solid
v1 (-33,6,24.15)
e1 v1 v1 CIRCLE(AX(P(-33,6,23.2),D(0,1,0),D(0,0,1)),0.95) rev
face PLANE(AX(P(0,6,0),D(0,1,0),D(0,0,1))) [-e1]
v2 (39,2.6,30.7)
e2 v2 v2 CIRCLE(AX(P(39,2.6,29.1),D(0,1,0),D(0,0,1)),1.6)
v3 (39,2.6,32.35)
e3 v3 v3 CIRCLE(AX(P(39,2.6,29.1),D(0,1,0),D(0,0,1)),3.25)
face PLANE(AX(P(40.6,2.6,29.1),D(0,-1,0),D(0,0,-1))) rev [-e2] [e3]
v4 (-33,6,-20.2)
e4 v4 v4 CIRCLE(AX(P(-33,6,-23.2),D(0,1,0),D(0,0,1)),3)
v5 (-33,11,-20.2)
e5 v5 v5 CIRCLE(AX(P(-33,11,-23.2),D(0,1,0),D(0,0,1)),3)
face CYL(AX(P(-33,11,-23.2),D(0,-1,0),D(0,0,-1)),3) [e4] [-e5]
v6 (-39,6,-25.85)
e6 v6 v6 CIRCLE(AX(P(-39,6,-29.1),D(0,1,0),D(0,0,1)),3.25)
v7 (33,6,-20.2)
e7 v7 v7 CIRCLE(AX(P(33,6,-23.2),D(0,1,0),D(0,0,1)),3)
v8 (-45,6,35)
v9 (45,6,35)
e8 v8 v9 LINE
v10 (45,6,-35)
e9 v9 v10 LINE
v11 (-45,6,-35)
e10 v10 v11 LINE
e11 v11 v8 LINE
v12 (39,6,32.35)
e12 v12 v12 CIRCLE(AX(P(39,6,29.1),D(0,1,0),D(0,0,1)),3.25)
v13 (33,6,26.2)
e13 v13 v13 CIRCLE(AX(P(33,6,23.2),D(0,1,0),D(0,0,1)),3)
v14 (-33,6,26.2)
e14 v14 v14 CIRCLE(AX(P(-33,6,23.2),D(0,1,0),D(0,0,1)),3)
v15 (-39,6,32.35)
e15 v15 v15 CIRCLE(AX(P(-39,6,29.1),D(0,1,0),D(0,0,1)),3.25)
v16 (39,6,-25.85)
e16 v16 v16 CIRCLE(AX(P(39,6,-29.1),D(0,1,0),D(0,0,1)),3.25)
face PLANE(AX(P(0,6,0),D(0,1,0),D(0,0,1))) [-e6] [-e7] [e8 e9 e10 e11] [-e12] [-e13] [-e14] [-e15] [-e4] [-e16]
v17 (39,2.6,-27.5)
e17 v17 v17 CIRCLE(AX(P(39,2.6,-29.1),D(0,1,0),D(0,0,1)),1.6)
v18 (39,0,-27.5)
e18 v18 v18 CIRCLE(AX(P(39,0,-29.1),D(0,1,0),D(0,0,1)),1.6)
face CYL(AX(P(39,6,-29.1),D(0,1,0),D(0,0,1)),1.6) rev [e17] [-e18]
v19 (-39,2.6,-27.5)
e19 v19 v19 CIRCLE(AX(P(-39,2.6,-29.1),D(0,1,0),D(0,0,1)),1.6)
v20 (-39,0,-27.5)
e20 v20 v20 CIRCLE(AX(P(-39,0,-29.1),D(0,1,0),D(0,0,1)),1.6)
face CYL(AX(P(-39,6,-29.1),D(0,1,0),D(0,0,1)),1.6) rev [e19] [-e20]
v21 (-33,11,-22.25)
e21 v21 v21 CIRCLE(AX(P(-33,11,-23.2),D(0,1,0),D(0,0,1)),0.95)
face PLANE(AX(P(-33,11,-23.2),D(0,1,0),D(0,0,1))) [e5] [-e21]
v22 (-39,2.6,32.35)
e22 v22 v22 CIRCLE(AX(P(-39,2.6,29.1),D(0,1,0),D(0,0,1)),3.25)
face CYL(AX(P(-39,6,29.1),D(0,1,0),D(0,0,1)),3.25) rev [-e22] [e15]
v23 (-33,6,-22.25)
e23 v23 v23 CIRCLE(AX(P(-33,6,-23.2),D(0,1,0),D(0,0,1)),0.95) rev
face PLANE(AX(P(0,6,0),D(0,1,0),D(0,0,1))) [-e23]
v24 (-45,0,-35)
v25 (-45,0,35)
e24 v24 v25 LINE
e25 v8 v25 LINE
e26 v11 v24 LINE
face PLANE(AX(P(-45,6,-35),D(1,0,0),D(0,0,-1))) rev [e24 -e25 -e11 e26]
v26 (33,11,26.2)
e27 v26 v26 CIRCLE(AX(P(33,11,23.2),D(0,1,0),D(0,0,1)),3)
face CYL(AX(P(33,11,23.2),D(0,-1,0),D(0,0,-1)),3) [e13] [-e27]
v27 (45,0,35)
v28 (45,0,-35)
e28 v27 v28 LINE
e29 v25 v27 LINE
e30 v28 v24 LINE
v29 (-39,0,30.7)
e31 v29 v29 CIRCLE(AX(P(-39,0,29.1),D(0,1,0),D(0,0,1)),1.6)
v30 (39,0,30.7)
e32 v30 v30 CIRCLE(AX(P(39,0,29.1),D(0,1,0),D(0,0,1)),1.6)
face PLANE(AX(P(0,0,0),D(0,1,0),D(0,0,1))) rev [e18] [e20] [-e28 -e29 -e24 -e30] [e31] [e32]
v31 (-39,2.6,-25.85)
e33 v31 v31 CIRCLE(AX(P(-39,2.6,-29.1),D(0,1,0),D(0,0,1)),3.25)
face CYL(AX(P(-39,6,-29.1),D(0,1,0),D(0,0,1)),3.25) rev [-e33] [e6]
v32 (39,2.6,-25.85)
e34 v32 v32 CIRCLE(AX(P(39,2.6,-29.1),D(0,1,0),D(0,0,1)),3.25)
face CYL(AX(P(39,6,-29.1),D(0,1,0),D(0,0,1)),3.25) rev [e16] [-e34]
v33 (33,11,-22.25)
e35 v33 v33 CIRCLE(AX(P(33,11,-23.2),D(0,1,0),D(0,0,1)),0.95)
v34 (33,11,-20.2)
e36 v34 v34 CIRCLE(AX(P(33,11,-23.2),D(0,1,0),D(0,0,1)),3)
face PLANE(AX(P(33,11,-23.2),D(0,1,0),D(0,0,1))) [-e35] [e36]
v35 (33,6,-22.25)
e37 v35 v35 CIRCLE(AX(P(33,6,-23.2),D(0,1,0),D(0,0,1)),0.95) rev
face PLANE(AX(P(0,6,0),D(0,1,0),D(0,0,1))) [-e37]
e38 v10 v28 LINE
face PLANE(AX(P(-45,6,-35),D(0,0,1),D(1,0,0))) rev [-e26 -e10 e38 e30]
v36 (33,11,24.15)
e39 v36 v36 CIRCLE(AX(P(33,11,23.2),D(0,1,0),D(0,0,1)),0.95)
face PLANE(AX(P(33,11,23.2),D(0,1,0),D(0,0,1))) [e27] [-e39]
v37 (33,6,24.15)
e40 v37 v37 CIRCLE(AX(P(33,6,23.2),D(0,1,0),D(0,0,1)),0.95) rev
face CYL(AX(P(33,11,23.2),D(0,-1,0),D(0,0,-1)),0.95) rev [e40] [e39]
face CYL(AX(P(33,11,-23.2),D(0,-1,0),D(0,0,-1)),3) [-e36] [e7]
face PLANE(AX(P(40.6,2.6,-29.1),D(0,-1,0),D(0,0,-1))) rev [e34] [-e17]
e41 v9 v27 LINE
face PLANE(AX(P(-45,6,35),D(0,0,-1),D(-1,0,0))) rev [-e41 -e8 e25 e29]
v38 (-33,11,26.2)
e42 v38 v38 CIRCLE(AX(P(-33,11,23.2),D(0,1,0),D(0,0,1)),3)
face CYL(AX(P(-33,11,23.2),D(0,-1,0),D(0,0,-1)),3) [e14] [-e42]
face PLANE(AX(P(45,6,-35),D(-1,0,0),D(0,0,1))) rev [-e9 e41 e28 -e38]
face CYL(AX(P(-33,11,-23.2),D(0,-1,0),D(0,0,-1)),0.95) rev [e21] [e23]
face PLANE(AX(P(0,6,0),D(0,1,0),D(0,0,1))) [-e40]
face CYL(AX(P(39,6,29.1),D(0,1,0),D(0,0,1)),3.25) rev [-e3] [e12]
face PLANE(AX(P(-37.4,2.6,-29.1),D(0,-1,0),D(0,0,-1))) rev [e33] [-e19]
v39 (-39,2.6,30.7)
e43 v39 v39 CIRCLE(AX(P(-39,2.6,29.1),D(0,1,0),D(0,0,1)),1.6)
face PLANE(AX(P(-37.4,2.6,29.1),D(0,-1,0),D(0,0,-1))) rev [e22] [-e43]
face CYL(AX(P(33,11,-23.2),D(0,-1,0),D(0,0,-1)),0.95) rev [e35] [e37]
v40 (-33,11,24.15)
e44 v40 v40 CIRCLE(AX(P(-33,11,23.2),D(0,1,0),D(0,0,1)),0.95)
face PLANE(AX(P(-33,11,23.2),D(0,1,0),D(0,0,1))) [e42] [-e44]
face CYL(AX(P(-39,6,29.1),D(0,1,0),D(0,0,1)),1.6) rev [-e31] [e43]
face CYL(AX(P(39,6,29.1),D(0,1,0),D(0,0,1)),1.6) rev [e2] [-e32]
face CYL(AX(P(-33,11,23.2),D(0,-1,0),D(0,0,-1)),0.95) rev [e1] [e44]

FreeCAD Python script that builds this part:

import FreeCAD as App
import Part
import Sketcher
Q = App.Units.Quantity

doc = App.newDocument("Part")
params = doc.addObject("Spreadsheet::Sheet", "Params")
for row, (alias, value) in enumerate([
    ("sketch1_width", "90 mm"),
    ("sketch1_height", "70 mm"),
    ("pad1_length", "6 mm"),
    ("sketch2_diameter", "6 mm"),
    ("sketch2_diameter2", "1.9 mm"),
    ("pad2_length", "5 mm"),
    ("sketch3_diameter", "3.2 mm"),
    ("hole_diameter", "3.2 mm"),
    ("hole_depth", "17.7 mm"),
    ("hole_cbore_diameter", "6.5 mm"),
    ("hole_cbore_depth", "3.4 mm"),
], start=1):
    params.set(f"A{row}", alias)
    params.set(f"B{row}", "=" + value)
    params.setAlias(f"B{row}", alias)

body = doc.addObject("PartDesign::Body", "Body")

# Sketch on XZ plane
sketch1 = body.newObject("Sketcher::SketchObject", "Sketch")
sketch1.AttachmentSupport = (doc.getObject("XZ_Plane"), [""])
sketch1.MapMode = "FlatFace"
sketch1.addGeometry([
    Part.LineSegment(App.Vector(-45, -35, 0), App.Vector(-45, 35, 0)),
    Part.LineSegment(App.Vector(-45, 35, 0), App.Vector(45, 35, 0)),
    Part.LineSegment(App.Vector(45, 35, 0), App.Vector(45, -35, 0)),
    Part.LineSegment(App.Vector(45, -35, 0), App.Vector(-45, -35, 0)),
], False)
sketch1.addConstraint([
    Sketcher.Constraint("Coincident", 0, 2, 1, 1),
    Sketcher.Constraint("Coincident", 1, 2, 2, 1),
    Sketcher.Constraint("Coincident", 2, 2, 3, 1),
    Sketcher.Constraint("Coincident", 3, 2, 0, 1),
    Sketcher.Constraint("Vertical", 0),
    Sketcher.Constraint("Horizontal", 1),
    Sketcher.Constraint("Vertical", 2),
    Sketcher.Constraint("Horizontal", 3),
    Sketcher.Constraint("Symmetric", 0, 2, 2, 2, -1, 1),
    Sketcher.Constraint("DistanceX", 1, 1, 1, 2, Q("90 mm")),
    Sketcher.Constraint("DistanceY", 0, 1, 0, 2, Q("70 mm")),
])
sketch1.setExpression("Constraints[9]", "Params.sketch1_width")
sketch1.setExpression("Constraints[10]", "Params.sketch1_height")
pad1 = body.newObject("PartDesign::Pad", "Pad")
pad1.Profile = sketch1
pad1.setExpression("Length", "Params.pad1_length")
pad1.Reversed = True

# Sketch on XZ plane
sketch2 = body.newObject("Sketcher::SketchObject", "Sketch001")
sketch2.AttachmentSupport = (doc.getObject("XZ_Plane"), [""])
sketch2.MapMode = "FlatFace"
sketch2.AttachmentOffset = App.Placement(App.Vector(0, 0, -6), App.Rotation())
sketch2.addGeometry([
    Part.Circle(App.Vector(-33, -23.2, 0), App.Vector(0, 0, 1), 3),  # 0
    Part.Circle(App.Vector(-33, -23.2, 0), App.Vector(0, 0, 1), 0.95),  # 1
    Part.Circle(App.Vector(-33, 23.2, 0), App.Vector(0, 0, 1), 3),  # 2
    Part.Circle(App.Vector(-33, 23.2, 0), App.Vector(0, 0, 1), 0.95),  # 3
    Part.Circle(App.Vector(33, 23.2, 0), App.Vector(0, 0, 1), 3),  # 4
    Part.Circle(App.Vector(33, 23.2, 0), App.Vector(0, 0, 1), 0.95),  # 5
    Part.Circle(App.Vector(33, -23.2, 0), App.Vector(0, 0, 1), 3),  # 6
    Part.Circle(App.Vector(33, -23.2, 0), App.Vector(0, 0, 1), 0.95),  # 7
], False)
sketch2.addConstraint([
    Sketcher.Constraint("Coincident", 1, 3, 0, 3),
    Sketcher.Constraint("Coincident", 3, 3, 2, 3),
    Sketcher.Constraint("Coincident", 5, 3, 4, 3),
    Sketcher.Constraint("Coincident", 7, 3, 6, 3),
    Sketcher.Constraint("Equal", 0, 2),
    Sketcher.Constraint("Equal", 1, 3),
    Sketcher.Constraint("Equal", 2, 4),
    Sketcher.Constraint("Equal", 3, 5),
    Sketcher.Constraint("Equal", 4, 6),
    Sketcher.Constraint("Equal", 5, 7),
    Sketcher.Constraint("Symmetric", 0, 3, 4, 3, -1, 1),
    Sketcher.Constraint("Symmetric", 2, 3, 6, 3, -1, 1),
    Sketcher.Constraint("Symmetric", 2, 3, 4, 3, -2),
    Sketcher.Constraint("Diameter", 0, Q("6 mm")),
    Sketcher.Constraint("Diameter", 1, Q("1.9 mm")),
    Sketcher.Constraint("DistanceX", 0, 3, -1, 1, Q("33 mm")),
    Sketcher.Constraint("DistanceY", 0, 3, -1, 1, Q("23.2 mm")),
])
sketch2.setExpression("Constraints[13]", "Params.sketch2_diameter")
sketch2.setExpression("Constraints[14]", "Params.sketch2_diameter2")
pad2 = body.newObject("PartDesign::Pad", "Pad001")
pad2.Profile = sketch2
pad2.setExpression("Length", "Params.pad2_length")
pad2.Reversed = True

# Sketch on XZ plane
sketch3 = body.newObject("Sketcher::SketchObject", "Sketch002")
sketch3.AttachmentSupport = (doc.getObject("XZ_Plane"), [""])
sketch3.MapMode = "FlatFace"
sketch3.AttachmentOffset = App.Placement(App.Vector(0, 0, -6), App.Rotation())
sketch3.addGeometry([
    Part.Circle(App.Vector(-39, -29.1, 0), App.Vector(0, 0, 1), 1.6),
    Part.Circle(App.Vector(-39, 29.1, 0), App.Vector(0, 0, 1), 1.6),
    Part.Circle(App.Vector(39, -29.1, 0), App.Vector(0, 0, 1), 1.6),
    Part.Circle(App.Vector(39, 29.1, 0), App.Vector(0, 0, 1), 1.6),
], False)
sketch3.addConstraint([
    Sketcher.Constraint("Equal", 0, 1),
    Sketcher.Constraint("Equal", 1, 2),
    Sketcher.Constraint("Equal", 2, 3),
    Sketcher.Constraint("Symmetric", 1, 3, 2, 3, -1, 1),
    Sketcher.Constraint("Symmetric", 0, 3, 3, 3, -1, 1),
    Sketcher.Constraint("Symmetric", 0, 3, 2, 3, -2),
    Sketcher.Constraint("Diameter", 0, Q("3.2 mm")),
    Sketcher.Constraint("DistanceX", 0, 3, -1, 1, Q("39 mm")),
    Sketcher.Constraint("DistanceY", 0, 3, -1, 1, Q("29.1 mm")),
])
sketch3.setExpression("Constraints[6]", "Params.sketch3_diameter")
doc.recompute()
hole = body.newObject("PartDesign::Hole", "Hole")
hole.Profile = sketch3
hole.ThreadType = "None"
hole.setExpression("Diameter", "Params.hole_diameter")
hole.DepthType = "Dimension"
hole.setExpression("Depth", "Params.hole_depth")
hole.DrillPoint = "Angled"
hole.DrillPointAngle = 118
hole.HoleCutType = "Counterbore"
hole.setExpression("HoleCutDiameter", "Params.hole_cbore_diameter")
hole.setExpression("HoleCutDepth", "Params.hole_cbore_depth")
hole.Reversed = True

doc.recompute()
